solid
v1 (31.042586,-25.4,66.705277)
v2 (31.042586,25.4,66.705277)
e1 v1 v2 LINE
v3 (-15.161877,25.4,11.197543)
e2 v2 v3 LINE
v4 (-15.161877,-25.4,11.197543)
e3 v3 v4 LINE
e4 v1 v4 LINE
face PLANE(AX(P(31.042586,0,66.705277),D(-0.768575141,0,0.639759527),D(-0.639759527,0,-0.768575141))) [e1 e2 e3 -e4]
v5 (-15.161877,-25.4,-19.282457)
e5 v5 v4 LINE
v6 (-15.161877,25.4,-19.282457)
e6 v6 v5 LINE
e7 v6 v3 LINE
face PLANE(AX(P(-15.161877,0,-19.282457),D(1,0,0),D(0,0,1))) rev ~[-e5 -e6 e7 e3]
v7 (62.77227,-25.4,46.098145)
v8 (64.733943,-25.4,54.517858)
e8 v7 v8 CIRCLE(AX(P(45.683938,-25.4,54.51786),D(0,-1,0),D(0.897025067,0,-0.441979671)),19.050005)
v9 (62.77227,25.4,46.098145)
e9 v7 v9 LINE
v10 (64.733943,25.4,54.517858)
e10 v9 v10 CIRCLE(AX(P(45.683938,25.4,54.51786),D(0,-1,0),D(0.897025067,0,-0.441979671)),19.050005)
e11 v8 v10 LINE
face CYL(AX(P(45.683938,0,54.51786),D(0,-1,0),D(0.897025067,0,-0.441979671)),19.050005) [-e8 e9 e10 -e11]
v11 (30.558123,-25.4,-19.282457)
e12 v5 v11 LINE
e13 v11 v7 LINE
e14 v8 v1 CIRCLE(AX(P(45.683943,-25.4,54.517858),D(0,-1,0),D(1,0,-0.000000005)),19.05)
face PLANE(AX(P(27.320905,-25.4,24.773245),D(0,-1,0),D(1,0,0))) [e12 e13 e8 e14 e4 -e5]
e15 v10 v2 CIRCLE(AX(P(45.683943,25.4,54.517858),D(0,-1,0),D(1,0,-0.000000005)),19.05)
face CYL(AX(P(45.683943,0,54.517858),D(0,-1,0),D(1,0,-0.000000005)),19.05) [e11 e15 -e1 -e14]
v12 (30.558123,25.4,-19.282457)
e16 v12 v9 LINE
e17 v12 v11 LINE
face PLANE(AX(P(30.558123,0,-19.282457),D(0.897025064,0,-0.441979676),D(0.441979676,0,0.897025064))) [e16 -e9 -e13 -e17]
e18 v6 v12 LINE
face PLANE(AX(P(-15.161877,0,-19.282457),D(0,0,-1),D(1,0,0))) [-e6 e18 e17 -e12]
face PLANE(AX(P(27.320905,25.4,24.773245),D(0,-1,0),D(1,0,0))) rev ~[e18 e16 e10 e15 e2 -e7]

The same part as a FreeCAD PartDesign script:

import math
import FreeCAD as App
import Part
import Sketcher
from FreeCAD import Vector
Q = App.Units.Quantity

doc = App.newDocument("Part")
params = doc.addObject("Spreadsheet::Sheet", "Params")
for row, (alias, value) in enumerate([
    ("sketch1_radius", "0.7500002 in"),
    ("sketch1_radius2", "0.75 in"),
    ("sketch1_width", "1.8 in"),
    ("sketch1_height", "1.2 in"),
    ("pad1_length", "2 in"),
], start=1):
    params.set(f"A{row}", alias)
    params.set(f"B{row}", "=" + value)
    params.setAlias(f"B{row}", alias)

body = doc.addObject("PartDesign::Body", "Body")

# Sketch on XZ plane
sketch1 = body.newObject("Sketcher::SketchObject", "Sketch")
sketch1.AttachmentSupport = (doc.getObject("XZ_Plane"), [""])
sketch1.MapMode = "FlatFace"
sketch1.addGeometry(Part.LineSegment(Vector(31, 67, 0), Vector(-15, 11, 0)), False)
sketch1.addGeometry(Part.LineSegment(Vector(-15, 11, 0), Vector(-15, -19, 0)), False)
sketch1.addGeometry(Part.LineSegment(Vector(-15, -19, 0), Vector(31, -19, 0)), False)
sketch1.addGeometry(Part.LineSegment(Vector(31, -19, 0), Vector(63, 46, 0)), False)
sketch1.addGeometry(Part.ArcOfCircle(Part.Circle(Vector(46, 55, 0), Vector(0, 0, 1), 19), math.radians(-26), math.radians(0)), False)
sketch1.addGeometry(Part.ArcOfCircle(Part.Circle(Vector(46, 55, 0), Vector(0, 0, 1), 19), math.radians(0), math.radians(140)), False)
sketch1.addConstraint(Sketcher.Constraint("Coincident", 0, 2, 1, 1))
sketch1.addConstraint(Sketcher.Constraint("Coincident", 1, 2, 2, 1))
sketch1.addConstraint(Sketcher.Constraint("Coincident", 2, 2, 3, 1))
sketch1.addConstraint(Sketcher.Constraint("Tangent", 3, 2, 4, 1))
sketch1.addConstraint(Sketcher.Constraint("Tangent", 4, 2, 5, 1))
sketch1.addConstraint(Sketcher.Constraint("Tangent", 5, 2, 0, 1))
sketch1.addConstraint(Sketcher.Constraint("Vertical", 1))
sketch1.addConstraint(Sketcher.Constraint("Horizontal", 2))
sketch1.addConstraint(Sketcher.Constraint("Horizontal", 5, 3, 4, 2))
sketch1.addConstraint(Sketcher.Constraint("Radius", 4, Q("0.7500002 in")))
sketch1.addConstraint(Sketcher.Constraint("Radius", 5, Q("0.75 in")))
sketch1.addConstraint(Sketcher.Constraint("DistanceX", 2, 1, 2, 2, Q("1.8 in")))
sketch1.addConstraint(Sketcher.Constraint("DistanceY", 1, 2, 1, 1, Q("1.2 in")))
sketch1.addConstraint(Sketcher.Constraint("DistanceX", 5, 2, 3, 2, Q("1.2492002 in")))
sketch1.addConstraint(Sketcher.Constraint("Distance", 0, 72.22161))
sketch1.addConstraint(Sketcher.Constraint("DistanceY", -1, 1, 4, 3, 54.51786))
sketch1.addConstraint(Sketcher.Constraint("DistanceX", -1, 1, 3, 2, 62.77227))
sketch1.setExpression("Constraints[9]", "Params.sketch1_radius")
sketch1.setExpression("Constraints[10]", "Params.sketch1_radius2")
sketch1.setExpression("Constraints[11]", "Params.sketch1_width")
sketch1.setExpression("Constraints[12]", "Params.sketch1_height")
pad1 = body.newObject("PartDesign::Pad", "Pad")
pad1.Profile = sketch1
pad1.setExpression("Length", "Params.pad1_length")
pad1.Midplane = True

doc.recompute()
